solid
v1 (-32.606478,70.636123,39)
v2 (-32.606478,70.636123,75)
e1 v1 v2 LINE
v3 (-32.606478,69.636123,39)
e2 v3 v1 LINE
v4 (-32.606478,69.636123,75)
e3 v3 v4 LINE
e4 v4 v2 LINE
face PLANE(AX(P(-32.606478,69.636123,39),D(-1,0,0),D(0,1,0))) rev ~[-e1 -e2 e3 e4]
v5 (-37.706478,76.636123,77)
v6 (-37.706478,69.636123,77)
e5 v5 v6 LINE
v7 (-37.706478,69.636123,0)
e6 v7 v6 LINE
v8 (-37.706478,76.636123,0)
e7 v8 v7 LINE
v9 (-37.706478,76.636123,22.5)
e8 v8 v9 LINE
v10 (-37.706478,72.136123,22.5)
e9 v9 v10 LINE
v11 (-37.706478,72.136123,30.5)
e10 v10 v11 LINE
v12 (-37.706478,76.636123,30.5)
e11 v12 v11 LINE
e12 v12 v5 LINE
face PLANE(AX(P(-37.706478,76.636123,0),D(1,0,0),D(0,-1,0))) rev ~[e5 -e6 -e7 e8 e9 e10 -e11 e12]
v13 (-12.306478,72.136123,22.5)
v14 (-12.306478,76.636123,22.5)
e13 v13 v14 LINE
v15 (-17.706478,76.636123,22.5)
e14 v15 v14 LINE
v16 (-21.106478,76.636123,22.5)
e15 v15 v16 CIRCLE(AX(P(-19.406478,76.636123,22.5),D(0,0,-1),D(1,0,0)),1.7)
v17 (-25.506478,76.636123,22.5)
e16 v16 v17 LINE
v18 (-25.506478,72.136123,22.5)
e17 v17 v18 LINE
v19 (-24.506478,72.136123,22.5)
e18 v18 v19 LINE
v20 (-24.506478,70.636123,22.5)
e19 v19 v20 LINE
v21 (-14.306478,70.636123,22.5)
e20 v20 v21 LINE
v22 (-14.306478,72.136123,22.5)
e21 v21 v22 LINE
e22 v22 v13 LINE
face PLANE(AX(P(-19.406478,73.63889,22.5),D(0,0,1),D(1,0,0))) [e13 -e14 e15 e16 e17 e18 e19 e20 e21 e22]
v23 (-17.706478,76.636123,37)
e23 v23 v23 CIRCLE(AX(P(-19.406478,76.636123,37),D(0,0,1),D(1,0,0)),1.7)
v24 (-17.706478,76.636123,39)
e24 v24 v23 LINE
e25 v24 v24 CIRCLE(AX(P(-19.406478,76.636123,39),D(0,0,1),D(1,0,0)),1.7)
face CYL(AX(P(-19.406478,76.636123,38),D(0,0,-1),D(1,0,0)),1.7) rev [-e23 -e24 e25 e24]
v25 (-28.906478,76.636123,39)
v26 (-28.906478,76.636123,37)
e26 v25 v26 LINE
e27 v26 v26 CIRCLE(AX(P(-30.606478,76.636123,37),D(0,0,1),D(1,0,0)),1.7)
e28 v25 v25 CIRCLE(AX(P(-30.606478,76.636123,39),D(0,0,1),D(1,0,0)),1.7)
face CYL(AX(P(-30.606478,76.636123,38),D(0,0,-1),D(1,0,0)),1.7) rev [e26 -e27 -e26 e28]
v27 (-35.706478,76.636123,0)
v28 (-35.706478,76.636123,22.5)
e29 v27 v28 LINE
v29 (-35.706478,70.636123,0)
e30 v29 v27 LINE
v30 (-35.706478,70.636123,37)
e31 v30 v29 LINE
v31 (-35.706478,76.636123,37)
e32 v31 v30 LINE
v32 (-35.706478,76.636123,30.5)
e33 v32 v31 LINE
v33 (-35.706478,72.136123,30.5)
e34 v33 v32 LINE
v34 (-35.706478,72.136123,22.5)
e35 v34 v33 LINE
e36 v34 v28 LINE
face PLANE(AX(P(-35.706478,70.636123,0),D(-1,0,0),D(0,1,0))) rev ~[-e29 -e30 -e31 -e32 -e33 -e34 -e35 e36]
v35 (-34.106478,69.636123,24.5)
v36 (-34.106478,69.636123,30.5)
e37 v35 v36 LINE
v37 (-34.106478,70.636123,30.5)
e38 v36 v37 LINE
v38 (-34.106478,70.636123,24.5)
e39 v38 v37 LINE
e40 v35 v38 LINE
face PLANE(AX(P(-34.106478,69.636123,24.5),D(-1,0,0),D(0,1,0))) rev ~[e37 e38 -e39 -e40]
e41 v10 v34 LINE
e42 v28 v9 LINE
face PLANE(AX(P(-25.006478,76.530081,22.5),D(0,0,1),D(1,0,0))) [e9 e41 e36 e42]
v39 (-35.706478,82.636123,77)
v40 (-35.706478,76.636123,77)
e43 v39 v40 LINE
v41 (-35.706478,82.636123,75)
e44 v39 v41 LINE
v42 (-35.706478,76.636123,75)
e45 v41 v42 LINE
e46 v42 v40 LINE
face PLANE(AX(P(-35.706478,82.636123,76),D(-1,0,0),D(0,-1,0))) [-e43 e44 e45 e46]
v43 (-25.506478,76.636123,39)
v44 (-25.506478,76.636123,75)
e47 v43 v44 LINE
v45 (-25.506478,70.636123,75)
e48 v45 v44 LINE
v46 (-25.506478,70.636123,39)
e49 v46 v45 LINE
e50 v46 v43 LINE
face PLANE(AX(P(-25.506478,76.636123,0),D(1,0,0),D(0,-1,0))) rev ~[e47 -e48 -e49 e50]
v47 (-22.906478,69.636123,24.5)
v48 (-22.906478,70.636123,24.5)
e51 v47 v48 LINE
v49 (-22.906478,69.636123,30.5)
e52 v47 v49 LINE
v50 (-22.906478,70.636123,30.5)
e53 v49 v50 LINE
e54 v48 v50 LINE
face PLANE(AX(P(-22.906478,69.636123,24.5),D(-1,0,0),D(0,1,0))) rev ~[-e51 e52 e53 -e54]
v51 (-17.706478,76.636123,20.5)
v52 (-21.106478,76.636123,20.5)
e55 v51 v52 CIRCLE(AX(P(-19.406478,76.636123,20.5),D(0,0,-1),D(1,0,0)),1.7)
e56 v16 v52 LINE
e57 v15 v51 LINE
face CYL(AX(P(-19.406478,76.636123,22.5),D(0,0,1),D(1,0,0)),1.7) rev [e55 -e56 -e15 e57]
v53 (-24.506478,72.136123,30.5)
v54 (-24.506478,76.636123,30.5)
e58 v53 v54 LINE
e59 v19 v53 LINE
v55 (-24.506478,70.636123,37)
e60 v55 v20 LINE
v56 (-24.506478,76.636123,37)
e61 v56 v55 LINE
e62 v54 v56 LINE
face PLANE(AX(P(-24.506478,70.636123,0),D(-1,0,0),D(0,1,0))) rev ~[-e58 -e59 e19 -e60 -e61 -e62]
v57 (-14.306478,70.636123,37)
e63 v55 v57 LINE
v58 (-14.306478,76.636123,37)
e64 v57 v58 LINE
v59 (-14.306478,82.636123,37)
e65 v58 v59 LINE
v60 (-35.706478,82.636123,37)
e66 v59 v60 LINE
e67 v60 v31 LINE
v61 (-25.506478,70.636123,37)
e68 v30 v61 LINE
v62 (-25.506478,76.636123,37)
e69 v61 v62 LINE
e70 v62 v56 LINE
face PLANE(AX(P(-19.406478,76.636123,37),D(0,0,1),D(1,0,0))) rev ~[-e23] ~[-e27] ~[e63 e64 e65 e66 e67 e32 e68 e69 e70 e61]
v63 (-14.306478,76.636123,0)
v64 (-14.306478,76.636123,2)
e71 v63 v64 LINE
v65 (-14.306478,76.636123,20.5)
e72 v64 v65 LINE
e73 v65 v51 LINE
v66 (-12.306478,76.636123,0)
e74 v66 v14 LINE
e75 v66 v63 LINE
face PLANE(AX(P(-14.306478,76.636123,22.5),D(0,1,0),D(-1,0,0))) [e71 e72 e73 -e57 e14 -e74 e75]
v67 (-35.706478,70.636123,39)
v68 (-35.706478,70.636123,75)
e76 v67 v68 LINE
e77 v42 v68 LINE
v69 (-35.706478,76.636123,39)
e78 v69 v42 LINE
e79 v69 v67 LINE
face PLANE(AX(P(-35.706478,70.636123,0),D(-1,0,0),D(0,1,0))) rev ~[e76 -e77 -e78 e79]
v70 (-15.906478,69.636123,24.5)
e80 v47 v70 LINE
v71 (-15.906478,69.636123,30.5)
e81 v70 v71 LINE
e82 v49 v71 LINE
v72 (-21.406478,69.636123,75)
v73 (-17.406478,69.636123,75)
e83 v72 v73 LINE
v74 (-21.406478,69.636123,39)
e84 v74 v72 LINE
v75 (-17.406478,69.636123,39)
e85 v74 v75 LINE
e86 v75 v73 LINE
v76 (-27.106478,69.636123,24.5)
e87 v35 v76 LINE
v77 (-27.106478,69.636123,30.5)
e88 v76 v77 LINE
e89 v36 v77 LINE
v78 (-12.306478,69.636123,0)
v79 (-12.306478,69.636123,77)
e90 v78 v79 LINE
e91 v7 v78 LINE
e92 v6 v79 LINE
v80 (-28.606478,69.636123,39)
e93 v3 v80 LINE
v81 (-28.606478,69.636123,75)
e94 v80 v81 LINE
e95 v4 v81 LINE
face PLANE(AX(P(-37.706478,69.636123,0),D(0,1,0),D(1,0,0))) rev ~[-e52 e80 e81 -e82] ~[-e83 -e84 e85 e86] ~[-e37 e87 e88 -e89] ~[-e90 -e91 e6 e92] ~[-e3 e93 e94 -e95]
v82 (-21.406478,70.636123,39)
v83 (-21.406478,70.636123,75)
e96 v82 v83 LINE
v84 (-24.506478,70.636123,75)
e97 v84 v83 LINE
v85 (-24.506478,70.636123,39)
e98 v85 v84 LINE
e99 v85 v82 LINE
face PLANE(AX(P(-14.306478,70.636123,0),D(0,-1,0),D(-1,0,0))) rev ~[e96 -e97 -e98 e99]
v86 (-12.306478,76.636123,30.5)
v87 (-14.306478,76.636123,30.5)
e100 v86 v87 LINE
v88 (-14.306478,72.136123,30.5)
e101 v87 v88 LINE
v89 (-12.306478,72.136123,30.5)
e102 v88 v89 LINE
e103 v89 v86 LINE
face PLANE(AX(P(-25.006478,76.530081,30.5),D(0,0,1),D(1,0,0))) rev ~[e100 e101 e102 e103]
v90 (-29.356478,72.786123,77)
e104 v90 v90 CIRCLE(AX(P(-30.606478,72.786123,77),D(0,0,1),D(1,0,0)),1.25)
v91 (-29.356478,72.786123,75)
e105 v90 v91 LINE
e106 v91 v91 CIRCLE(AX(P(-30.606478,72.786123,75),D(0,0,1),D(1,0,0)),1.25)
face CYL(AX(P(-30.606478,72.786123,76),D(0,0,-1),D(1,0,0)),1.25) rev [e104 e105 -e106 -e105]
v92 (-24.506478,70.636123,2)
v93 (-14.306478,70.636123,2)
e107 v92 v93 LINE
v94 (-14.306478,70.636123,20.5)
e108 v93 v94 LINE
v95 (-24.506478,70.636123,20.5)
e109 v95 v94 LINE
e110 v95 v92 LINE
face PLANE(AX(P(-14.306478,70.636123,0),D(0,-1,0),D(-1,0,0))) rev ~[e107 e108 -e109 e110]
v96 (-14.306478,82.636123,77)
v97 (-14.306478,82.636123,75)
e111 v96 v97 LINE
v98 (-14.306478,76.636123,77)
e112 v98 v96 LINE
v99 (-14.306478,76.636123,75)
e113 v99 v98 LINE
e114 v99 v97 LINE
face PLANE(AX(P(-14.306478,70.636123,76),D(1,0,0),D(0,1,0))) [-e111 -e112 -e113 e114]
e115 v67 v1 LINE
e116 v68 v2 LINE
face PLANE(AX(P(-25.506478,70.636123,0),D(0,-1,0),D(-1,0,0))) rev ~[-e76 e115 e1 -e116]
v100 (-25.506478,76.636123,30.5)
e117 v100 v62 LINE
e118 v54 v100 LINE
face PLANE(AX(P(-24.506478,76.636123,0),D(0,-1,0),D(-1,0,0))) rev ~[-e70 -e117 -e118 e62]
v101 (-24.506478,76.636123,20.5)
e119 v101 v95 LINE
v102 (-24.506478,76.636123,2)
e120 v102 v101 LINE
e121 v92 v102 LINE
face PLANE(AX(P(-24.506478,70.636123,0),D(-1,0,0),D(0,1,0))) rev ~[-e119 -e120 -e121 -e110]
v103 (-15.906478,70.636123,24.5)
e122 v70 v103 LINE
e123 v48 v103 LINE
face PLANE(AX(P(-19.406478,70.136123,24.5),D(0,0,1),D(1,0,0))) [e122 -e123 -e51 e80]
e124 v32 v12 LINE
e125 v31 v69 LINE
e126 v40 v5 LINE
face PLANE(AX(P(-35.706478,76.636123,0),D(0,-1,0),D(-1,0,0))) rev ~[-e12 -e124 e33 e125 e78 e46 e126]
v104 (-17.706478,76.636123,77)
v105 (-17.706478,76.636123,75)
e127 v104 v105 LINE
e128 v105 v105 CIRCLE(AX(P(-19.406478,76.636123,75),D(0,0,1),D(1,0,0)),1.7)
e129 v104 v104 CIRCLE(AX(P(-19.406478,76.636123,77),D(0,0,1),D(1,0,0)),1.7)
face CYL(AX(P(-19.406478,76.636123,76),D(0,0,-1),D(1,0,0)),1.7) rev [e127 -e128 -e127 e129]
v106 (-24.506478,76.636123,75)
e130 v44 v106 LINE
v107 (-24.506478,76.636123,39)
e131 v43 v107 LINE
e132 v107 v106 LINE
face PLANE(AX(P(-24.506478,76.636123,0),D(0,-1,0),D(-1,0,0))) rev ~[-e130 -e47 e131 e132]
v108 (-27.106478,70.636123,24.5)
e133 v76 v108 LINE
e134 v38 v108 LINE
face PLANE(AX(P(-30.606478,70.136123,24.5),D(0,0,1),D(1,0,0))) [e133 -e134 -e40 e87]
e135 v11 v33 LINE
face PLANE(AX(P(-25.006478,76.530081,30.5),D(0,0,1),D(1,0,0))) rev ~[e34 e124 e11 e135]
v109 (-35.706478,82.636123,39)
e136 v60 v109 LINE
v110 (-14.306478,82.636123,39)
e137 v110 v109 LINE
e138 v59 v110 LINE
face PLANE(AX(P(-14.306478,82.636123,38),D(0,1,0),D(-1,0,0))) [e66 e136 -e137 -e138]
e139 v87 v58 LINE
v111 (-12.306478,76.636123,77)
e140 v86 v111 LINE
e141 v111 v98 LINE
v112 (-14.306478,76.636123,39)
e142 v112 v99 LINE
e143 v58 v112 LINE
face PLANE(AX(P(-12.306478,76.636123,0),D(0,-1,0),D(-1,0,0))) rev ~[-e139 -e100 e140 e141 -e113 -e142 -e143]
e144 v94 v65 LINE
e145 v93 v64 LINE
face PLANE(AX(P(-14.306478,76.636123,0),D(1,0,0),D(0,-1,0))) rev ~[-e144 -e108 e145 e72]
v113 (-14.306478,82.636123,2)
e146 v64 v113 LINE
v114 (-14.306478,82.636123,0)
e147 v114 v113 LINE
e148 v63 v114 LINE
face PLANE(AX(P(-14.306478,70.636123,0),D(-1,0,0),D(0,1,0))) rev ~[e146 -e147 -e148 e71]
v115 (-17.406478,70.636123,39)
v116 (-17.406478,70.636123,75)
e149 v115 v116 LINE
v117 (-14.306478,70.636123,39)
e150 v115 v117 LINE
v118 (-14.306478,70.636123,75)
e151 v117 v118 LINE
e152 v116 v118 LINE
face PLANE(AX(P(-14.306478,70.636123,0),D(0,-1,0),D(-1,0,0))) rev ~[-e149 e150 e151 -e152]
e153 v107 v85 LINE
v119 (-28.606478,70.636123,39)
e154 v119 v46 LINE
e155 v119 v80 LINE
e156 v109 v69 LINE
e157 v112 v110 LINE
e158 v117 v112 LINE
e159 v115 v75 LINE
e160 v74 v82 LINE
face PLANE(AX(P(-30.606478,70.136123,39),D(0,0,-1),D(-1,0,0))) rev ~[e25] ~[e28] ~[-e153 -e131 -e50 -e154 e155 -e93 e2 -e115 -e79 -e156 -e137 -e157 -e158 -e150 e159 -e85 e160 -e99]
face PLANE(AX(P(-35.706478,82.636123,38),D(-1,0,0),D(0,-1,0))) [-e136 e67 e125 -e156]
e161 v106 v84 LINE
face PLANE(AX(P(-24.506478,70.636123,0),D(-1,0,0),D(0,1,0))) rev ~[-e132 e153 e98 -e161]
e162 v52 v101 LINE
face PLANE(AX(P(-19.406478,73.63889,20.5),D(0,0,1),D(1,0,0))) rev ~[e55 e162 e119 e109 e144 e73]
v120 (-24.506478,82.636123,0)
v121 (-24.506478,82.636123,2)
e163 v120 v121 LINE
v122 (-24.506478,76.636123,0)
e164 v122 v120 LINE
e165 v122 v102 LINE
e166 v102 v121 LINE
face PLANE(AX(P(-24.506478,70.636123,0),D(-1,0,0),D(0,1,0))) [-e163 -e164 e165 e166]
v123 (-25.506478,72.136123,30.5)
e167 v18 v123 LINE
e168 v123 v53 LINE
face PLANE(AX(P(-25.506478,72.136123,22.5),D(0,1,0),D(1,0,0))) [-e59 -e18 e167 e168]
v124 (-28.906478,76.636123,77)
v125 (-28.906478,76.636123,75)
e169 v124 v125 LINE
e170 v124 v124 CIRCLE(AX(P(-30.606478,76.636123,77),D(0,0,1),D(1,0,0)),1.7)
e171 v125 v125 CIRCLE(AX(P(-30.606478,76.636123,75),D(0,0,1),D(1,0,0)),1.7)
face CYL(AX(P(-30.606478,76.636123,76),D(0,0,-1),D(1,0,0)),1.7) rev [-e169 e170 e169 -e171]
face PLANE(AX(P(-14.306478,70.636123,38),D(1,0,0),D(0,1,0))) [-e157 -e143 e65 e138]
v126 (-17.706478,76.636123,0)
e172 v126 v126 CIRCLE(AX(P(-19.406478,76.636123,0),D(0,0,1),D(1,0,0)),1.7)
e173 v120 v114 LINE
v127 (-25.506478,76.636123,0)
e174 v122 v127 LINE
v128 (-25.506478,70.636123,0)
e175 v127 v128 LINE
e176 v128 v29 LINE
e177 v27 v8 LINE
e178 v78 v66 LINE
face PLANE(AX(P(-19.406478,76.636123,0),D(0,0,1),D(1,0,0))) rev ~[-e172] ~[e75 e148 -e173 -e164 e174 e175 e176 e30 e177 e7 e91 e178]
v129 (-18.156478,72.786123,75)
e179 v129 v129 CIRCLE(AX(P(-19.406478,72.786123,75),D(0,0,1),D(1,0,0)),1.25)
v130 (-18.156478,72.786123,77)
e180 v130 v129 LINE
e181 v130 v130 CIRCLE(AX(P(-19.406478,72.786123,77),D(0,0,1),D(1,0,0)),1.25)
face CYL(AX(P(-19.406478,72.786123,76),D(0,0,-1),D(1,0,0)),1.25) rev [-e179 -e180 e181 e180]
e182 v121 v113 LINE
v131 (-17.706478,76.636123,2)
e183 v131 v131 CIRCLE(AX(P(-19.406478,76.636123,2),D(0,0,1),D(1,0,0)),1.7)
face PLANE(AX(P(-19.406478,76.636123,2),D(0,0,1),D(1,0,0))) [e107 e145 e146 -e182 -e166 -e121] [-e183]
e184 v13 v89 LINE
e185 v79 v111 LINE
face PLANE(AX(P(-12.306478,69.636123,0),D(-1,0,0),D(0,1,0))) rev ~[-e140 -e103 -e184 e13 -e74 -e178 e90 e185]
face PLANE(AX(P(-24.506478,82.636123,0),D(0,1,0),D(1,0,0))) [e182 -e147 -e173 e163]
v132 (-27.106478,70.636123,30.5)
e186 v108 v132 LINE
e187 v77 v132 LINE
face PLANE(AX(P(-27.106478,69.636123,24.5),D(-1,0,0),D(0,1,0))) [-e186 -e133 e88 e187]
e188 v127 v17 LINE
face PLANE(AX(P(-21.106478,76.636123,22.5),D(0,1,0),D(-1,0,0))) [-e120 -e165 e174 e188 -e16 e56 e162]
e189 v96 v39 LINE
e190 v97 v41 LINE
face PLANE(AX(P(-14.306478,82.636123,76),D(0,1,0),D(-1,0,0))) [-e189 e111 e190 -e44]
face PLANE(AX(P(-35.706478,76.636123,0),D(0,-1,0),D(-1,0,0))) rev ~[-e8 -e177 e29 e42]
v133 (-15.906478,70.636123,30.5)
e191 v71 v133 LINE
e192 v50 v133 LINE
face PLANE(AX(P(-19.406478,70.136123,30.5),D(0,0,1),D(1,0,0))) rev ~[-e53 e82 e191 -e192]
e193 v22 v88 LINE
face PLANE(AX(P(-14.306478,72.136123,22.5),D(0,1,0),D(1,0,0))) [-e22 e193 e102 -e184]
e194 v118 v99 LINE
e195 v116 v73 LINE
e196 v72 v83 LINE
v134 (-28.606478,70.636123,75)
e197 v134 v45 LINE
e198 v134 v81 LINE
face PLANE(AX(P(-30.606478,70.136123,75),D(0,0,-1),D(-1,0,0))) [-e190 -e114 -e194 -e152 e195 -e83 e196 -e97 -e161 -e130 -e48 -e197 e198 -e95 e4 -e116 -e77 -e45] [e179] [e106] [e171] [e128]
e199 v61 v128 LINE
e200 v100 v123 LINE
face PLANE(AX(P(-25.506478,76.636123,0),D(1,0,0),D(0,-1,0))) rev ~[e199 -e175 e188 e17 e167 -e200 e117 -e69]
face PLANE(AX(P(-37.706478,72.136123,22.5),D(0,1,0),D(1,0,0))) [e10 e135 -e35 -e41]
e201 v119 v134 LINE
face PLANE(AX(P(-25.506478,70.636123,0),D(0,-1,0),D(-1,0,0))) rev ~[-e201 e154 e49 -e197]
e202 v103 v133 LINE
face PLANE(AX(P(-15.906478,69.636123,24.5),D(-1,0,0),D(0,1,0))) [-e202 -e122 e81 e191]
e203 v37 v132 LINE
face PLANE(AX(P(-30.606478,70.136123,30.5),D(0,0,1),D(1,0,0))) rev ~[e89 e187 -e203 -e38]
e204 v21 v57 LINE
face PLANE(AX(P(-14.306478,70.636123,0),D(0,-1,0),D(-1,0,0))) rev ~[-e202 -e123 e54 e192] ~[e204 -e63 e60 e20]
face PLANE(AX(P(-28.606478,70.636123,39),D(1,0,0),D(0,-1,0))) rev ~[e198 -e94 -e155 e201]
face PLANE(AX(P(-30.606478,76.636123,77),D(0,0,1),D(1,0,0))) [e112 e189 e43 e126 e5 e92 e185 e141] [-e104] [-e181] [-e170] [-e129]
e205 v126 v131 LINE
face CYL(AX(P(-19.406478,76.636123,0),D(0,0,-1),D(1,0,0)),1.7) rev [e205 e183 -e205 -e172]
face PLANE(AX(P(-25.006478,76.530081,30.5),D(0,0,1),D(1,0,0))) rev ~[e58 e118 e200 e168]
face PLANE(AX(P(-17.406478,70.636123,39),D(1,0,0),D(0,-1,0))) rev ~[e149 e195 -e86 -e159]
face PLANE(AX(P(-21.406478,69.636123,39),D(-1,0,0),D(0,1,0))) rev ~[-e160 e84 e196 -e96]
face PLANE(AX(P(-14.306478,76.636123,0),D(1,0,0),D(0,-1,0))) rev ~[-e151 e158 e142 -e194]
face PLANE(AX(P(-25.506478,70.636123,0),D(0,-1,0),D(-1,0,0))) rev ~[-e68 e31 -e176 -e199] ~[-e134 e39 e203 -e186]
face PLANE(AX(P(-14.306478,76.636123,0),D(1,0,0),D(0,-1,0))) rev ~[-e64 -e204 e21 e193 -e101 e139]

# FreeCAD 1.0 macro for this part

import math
import FreeCAD as App
import Part
import Sketcher
Q = App.Units.Quantity

doc = App.newDocument("Part")
params = doc.addObject("Spreadsheet::Sheet", "Params")
for row, (alias, value) in enumerate([
    ("sketch1_width", "1 mm"),
    ("sketch1_width2", "2 mm"),
    ("sketch1_height", "6 mm"),
    ("sketch1_height2", "7 mm"),
    ("sketch1_width3", "10.2 mm"),
    ("pad1_length", "77 mm"),
    ("sketch2_diameter", "3.4 mm"),
    ("sketch2_width", "1 mm"),
    ("sketch2_height", "12 mm"),
    ("sketch2_height2", "6 mm"),
    ("sketch2_width2", "10.2 mm"),
    ("pad2_length", "2 mm"),
    ("sketch3_diameter", "2.5 mm"),
    ("sketch3_diameter2", "3.4 mm"),
    ("sketch3_width", "1 mm"),
    ("sketch3_height", "12 mm"),
    ("sketch3_height2", "6 mm"),
    ("pad3_length", "2 mm"),
    ("sketch4_width", "2 mm"),
    ("sketch4_width2", "1 mm"),
    ("sketch4_width3", "25.4 mm"),
    ("sketch4_height", "1.5 mm"),
    ("sketch4_height2", "10.5 mm"),
    ("pocket1_length", "8 mm"),
    ("sketch5_radius", "1.7 mm"),
    ("sketch5_height", "6 mm"),
    ("sketch5_width", "10.2 mm"),
    ("pad4_length", "2 mm"),
    ("sketch6_diameter", "3.4 mm"),
    ("sketch6_height", "12 mm"),
    ("sketch6_width", "10.2 mm"),
    ("pad5_length", "2 mm"),
    ("sketch7_width", "7 mm"),
    ("sketch7_height", "1 mm"),
    ("pocket2_length", "6 mm"),
    ("sketch8_width", "4 mm"),
    ("sketch8_height", "1 mm"),
    ("pocket3_length", "36 mm"),
], start=1):
    params.set(f"A{row}", alias)
    params.set(f"B{row}", "=" + value)
    params.setAlias(f"B{row}", alias)

body = doc.addObject("PartDesign::Body", "Body")

sketch1 = body.newObject("Sketcher::SketchObject", "Sketch")
sketch1.AttachmentSupport = (doc.getObject("XY_Plane"), [""])
sketch1.MapMode = "FlatFace"
sketch1.addGeometry([
    Part.LineSegment(App.Vector(-24.506478, 70.636123, 0), App.Vector(-24.506478, 76.636123, 0)),
    Part.LineSegment(App.Vector(-24.506478, 76.636123, 0), App.Vector(-25.506478, 76.636123, 0)),
    Part.LineSegment(App.Vector(-25.506478, 76.636123, 0), App.Vector(-25.506478, 70.636123, 0)),
    Part.LineSegment(App.Vector(-25.506478, 70.636123, 0), App.Vector(-35.706478, 70.636123, 0)),
    Part.LineSegment(App.Vector(-35.706478, 70.636123, 0), App.Vector(-35.706478, 76.636123, 0)),
    Part.LineSegment(App.Vector(-35.706478, 76.636123, 0), App.Vector(-37.706478, 76.636123, 0)),
    Part.LineSegment(App.Vector(-37.706478, 76.636123, 0), App.Vector(-37.706478, 69.636123, 0)),
    Part.LineSegment(App.Vector(-37.706478, 69.636123, 0), App.Vector(-12.306478, 69.636123, 0)),
    Part.LineSegment(App.Vector(-12.306478, 69.636123, 0), App.Vector(-12.306478, 76.636123, 0)),
    Part.LineSegment(App.Vector(-12.306478, 76.636123, 0), App.Vector(-14.306478, 76.636123, 0)),
    Part.LineSegment(App.Vector(-14.306478, 76.636123, 0), App.Vector(-14.306478, 70.636123, 0)),
    Part.LineSegment(App.Vector(-14.306478, 70.636123, 0), App.Vector(-24.506478, 70.636123, 0)),
], False)
sketch1.addConstraint([
    Sketcher.Constraint("Coincident", 0, 2, 1, 1),
    Sketcher.Constraint("Coincident", 1, 2, 2, 1),
    Sketcher.Constraint("Coincident", 2, 2, 3, 1),
    Sketcher.Constraint("Coincident", 3, 2, 4, 1),
    Sketcher.Constraint("Coincident", 4, 2, 5, 1),
    Sketcher.Constraint("Coincident", 5, 2, 6, 1),
    Sketcher.Constraint("Coincident", 6, 2, 7, 1),
    Sketcher.Constraint("Coincident", 7, 2, 8, 1),
    Sketcher.Constraint("Coincident", 8, 2, 9, 1),
    Sketcher.Constraint("Coincident", 9, 2, 10, 1),
    Sketcher.Constraint("Coincident", 10, 2, 11, 1),
    Sketcher.Constraint("Coincident", 11, 2, 0, 1),
    Sketcher.Constraint("Vertical", 0),
    Sketcher.Constraint("Horizontal", 1),
    Sketcher.Constraint("Vertical", 2),
    Sketcher.Constraint("Horizontal", 3),
    Sketcher.Constraint("Vertical", 4),
    Sketcher.Constraint("Horizontal", 5),
    Sketcher.Constraint("Vertical", 6),
    Sketcher.Constraint("Horizontal", 7),
    Sketcher.Constraint("Vertical", 8),
    Sketcher.Constraint("Horizontal", 9),
    Sketcher.Constraint("Vertical", 10),
    Sketcher.Constraint("Horizontal", 11),
    Sketcher.Constraint("Horizontal", 1, 2, 4, 2),
    Sketcher.Constraint("Horizontal", 5, 2, 8, 2),
    Sketcher.Constraint("Horizontal", 3, 2, 10, 2),
    Sketcher.Constraint("Equal", 5, 9),
    Sketcher.Constraint("Equal", 3, 11),
    Sketcher.Constraint("DistanceX", 1, 2, 1, 1, Q("1 mm")),
    Sketcher.Constraint("DistanceX", 5, 2, 5, 1, Q("2 mm")),
    Sketcher.Constraint("DistanceY", 0, 1, 0, 2, Q("6 mm")),
    Sketcher.Constraint("DistanceY", 6, 2, 6, 1, Q("7 mm")),
    Sketcher.Constraint("DistanceX", 3, 2, 3, 1, Q("10.2 mm")),
    Sketcher.Constraint("DistanceX", 0, 2, -1, 1, Q("24.506478 mm")),
    Sketcher.Constraint("DistanceY", -1, 1, 0, 2, Q("76.636123 mm")),
])
sketch1.setExpression("Constraints[29]", "Params.sketch1_width")
sketch1.setExpression("Constraints[30]", "Params.sketch1_width2")
sketch1.setExpression("Constraints[31]", "Params.sketch1_height")
sketch1.setExpression("Constraints[32]", "Params.sketch1_height2")
sketch1.setExpression("Constraints[33]", "Params.sketch1_width3")
pad1 = body.newObject("PartDesign::Pad", "Pad")
pad1.Profile = sketch1
pad1.setExpression("Length", "Params.pad1_length")

sketch2 = body.newObject("Sketcher::SketchObject", "Sketch001")
sketch2.AttachmentSupport = (doc.getObject("XY_Plane"), [""])
sketch2.MapMode = "FlatFace"
sketch2.AttachmentOffset = App.Placement(App.Vector(0, 0, 38), App.Rotation())
sketch2.addGeometry([
    Part.LineSegment(App.Vector(-24.506478, 70.636123, 0), App.Vector(-14.306478, 70.636123, 0)),
    Part.LineSegment(App.Vector(-14.306478, 70.636123, 0), App.Vector(-14.306478, 82.636123, 0)),
    Part.LineSegment(App.Vector(-14.306478, 82.636123, 0), App.Vector(-35.706478, 82.636123, 0)),
    Part.LineSegment(App.Vector(-35.706478, 82.636123, 0), App.Vector(-35.706478, 70.636123, 0)),
    Part.LineSegment(App.Vector(-35.706478, 70.636123, 0), App.Vector(-25.506478, 70.636123, 0)),
    Part.LineSegment(App.Vector(-25.506478, 70.636123, 0), App.Vector(-25.506478, 76.636123, 0)),
    Part.LineSegment(App.Vector(-25.506478, 76.636123, 0), App.Vector(-24.506478, 76.636123, 0)),
    Part.LineSegment(App.Vector(-24.506478, 76.636123, 0), App.Vector(-24.506478, 70.636123, 0)),
    Part.Circle(App.Vector(-30.606478, 76.636123, 0), App.Vector(0, 0, 1), 1.7),
    Part.Circle(App.Vector(-19.406478, 76.636123, 0), App.Vector(0, 0, 1), 1.7),
], False)
sketch2.addConstraint([
    Sketcher.Constraint("Coincident", 0, 2, 1, 1),
    Sketcher.Constraint("Coincident", 1, 2, 2, 1),
    Sketcher.Constraint("Coincident", 2, 2, 3, 1),
    Sketcher.Constraint("Coincident", 3, 2, 4, 1),
    Sketcher.Constraint("Coincident", 4, 2, 5, 1),
    Sketcher.Constraint("Coincident", 5, 2, 6, 1),
    Sketcher.Constraint("Coincident", 6, 2, 7, 1),
    Sketcher.Constraint("Coincident", 7, 2, 0, 1),
    Sketcher.Constraint("Horizontal", 0),
    Sketcher.Constraint("Vertical", 1),
    Sketcher.Constraint("Horizontal", 2),
    Sketcher.Constraint("Vertical", 3),
    Sketcher.Constraint("Horizontal", 4),
    Sketcher.Constraint("Vertical", 5),
    Sketcher.Constraint("Horizontal", 6),
    Sketcher.Constraint("Vertical", 7),
    Sketcher.Constraint("Equal", 8, 9),
    Sketcher.Constraint("Horizontal", 8, 3, 9, 3),
    Sketcher.Constraint("Horizontal", 0, 2, 3, 2),
    Sketcher.Constraint("Horizontal", 9, 3, 5, 2),
    Sketcher.Constraint("Equal", 0, 4),
    Sketcher.Constraint("Diameter", 8, Q("3.4 mm")),
    Sketcher.Constraint("DistanceX", 6, 1, 6, 2, Q("1 mm")),
    Sketcher.Constraint("DistanceY", 1, 1, 1, 2, Q("12 mm")),
    Sketcher.Constraint("DistanceY", 5, 1, 5, 2, Q("6 mm")),
    Sketcher.Constraint("DistanceX", 0, 1, 0, 2, Q("10.2 mm")),
    Sketcher.Constraint("DistanceX", 8, 3, 9, 3, Q("11.2 mm")),
    Sketcher.Constraint("DistanceX", 9, 3, 0, 2, Q("5.1 mm")),
    Sketcher.Constraint("DistanceX", 8, 3, -1, 1, Q("30.606478 mm")),
    Sketcher.Constraint("DistanceY", -1, 1, 8, 3, Q("76.636123 mm")),
])
sketch2.setExpression("Constraints[21]", "Params.sketch2_diameter")
sketch2.setExpression("Constraints[22]", "Params.sketch2_width")
sketch2.setExpression("Constraints[23]", "Params.sketch2_height")
sketch2.setExpression("Constraints[24]", "Params.sketch2_height2")
sketch2.setExpression("Constraints[25]", "Params.sketch2_width2")
pad2 = body.newObject("PartDesign::Pad", "Pad001")
pad2.Profile = sketch2
pad2.setExpression("Length", "Params.pad2_length")
pad2.Midplane = True

sketch3 = body.newObject("Sketcher::SketchObject", "Sketch002")
sketch3.AttachmentSupport = (doc.getObject("XY_Plane"), [""])
sketch3.MapMode = "FlatFace"
sketch3.AttachmentOffset = App.Placement(App.Vector(0, 0, 76), App.Rotation())
sketch3.addGeometry([
    Part.LineSegment(App.Vector(-35.706478, 82.636123, 0), App.Vector(-35.706478, 70.636123, 0)),
    Part.LineSegment(App.Vector(-35.706478, 70.636123, 0), App.Vector(-25.506478, 70.636123, 0)),
    Part.LineSegment(App.Vector(-25.506478, 70.636123, 0), App.Vector(-25.506478, 76.636123, 0)),
    Part.LineSegment(App.Vector(-25.506478, 76.636123, 0), App.Vector(-24.506478, 76.636123, 0)),
    Part.LineSegment(App.Vector(-24.506478, 76.636123, 0), App.Vector(-24.506478, 70.636123, 0)),
    Part.LineSegment(App.Vector(-24.506478, 70.636123, 0), App.Vector(-14.306478, 70.636123, 0)),
    Part.LineSegment(App.Vector(-14.306478, 70.636123, 0), App.Vector(-14.306478, 82.636123, 0)),
    Part.LineSegment(App.Vector(-14.306478, 82.636123, 0), App.Vector(-35.706478, 82.636123, 0)),
    Part.Circle(App.Vector(-30.606478, 72.786123, 0), App.Vector(0, 0, 1), 1.25),
    Part.Circle(App.Vector(-19.406478, 72.786123, 0), App.Vector(0, 0, 1), 1.25),
    Part.Circle(App.Vector(-30.606478, 76.636123, 0), App.Vector(0, 0, 1), 1.7),
    Part.Circle(App.Vector(-19.406478, 76.636123, 0), App.Vector(0, 0, 1), 1.7),
], False)
sketch3.addConstraint([
    Sketcher.Constraint("Coincident", 0, 2, 1, 1),
    Sketcher.Constraint("Coincident", 1, 2, 2, 1),
    Sketcher.Constraint("Coincident", 2, 2, 3, 1),
    Sketcher.Constraint("Coincident", 3, 2, 4, 1),
    Sketcher.Constraint("Coincident", 4, 2, 5, 1),
    Sketcher.Constraint("Coincident", 5, 2, 6, 1),
    Sketcher.Constraint("Coincident", 6, 2, 7, 1),
    Sketcher.Constraint("Coincident", 7, 2, 0, 1),
    Sketcher.Constraint("Vertical", 0),
    Sketcher.Constraint("Horizontal", 1),
    Sketcher.Constraint("Vertical", 2),
    Sketcher.Constraint("Horizontal", 3),
    Sketcher.Constraint("Vertical", 4),
    Sketcher.Constraint("Horizontal", 5),
    Sketcher.Constraint("Vertical", 6),
    Sketcher.Constraint("Horizontal", 7),
    Sketcher.Constraint("Equal", 8, 9),
    Sketcher.Constraint("Equal", 10, 11),
    Sketcher.Constraint("Horizontal", 8, 3, 9, 3),
    Sketcher.Constraint("Horizontal", 10, 3, 11, 3),
    Sketcher.Constraint("Horizontal", 11, 3, 2, 2),
    Sketcher.Constraint("Horizontal", 1, 2, 4, 2),
    Sketcher.Constraint("Vertical", 8, 3, 10, 3),
    Sketcher.Constraint("Vertical", 9, 3, 11, 3),
    Sketcher.Constraint("Equal", 1, 5),
    Sketcher.Constraint("Diameter", 8, Q("2.5 mm")),
    Sketcher.Constraint("Diameter", 10, Q("3.4 mm")),
    Sketcher.Constraint("DistanceX", 3, 1, 3, 2, Q("1 mm")),
    Sketcher.Constraint("DistanceY", 0, 2, 0, 1, Q("12 mm")),
    Sketcher.Constraint("DistanceY", 2, 1, 2, 2, Q("6 mm")),
    Sketcher.Constraint("DistanceX", 1, 1, 1, 2, Q("10.2 mm")),
    Sketcher.Constraint("DistanceX", 8, 3, 9, 3, Q("11.2 mm")),
    Sketcher.Constraint("DistanceX", 0, 2, 8, 3, Q("5.1 mm")),
    Sketcher.Constraint("DistanceY", 8, 3, 10, 3, Q("3.85 mm")),
    Sketcher.Constraint("DistanceX", 8, 3, -1, 1, Q("30.606478 mm")),
    Sketcher.Constraint("DistanceY", -1, 1, 8, 3, Q("72.786123 mm")),
])
sketch3.setExpression("Constraints[25]", "Params.sketch3_diameter")
sketch3.setExpression("Constraints[26]", "Params.sketch3_diameter2")
sketch3.setExpression("Constraints[27]", "Params.sketch3_width")
sketch3.setExpression("Constraints[28]", "Params.sketch3_height")
sketch3.setExpression("Constraints[29]", "Params.sketch3_height2")
pad3 = body.newObject("PartDesign::Pad", "Pad002")
pad3.Profile = sketch3
pad3.setExpression("Length", "Params.pad3_length")
pad3.Midplane = True

sketch4 = body.newObject("Sketcher::SketchObject", "Sketch003")
sketch4.AttachmentSupport = (doc.getObject("XY_Plane"), [""])
sketch4.MapMode = "FlatFace"
sketch4.AttachmentOffset = App.Placement(App.Vector(0, 0, 22.5), App.Rotation())
sketch4.addGeometry([
    Part.LineSegment(App.Vector(-14.306478, 70.636123, 0), App.Vector(-14.306478, 72.136123, 0)),
    Part.LineSegment(App.Vector(-14.306478, 72.136123, 0), App.Vector(-12.306478, 72.136123, 0)),
    Part.LineSegment(App.Vector(-12.306478, 72.136123, 0), App.Vector(-12.306478, 82.636123, 0)),
    Part.LineSegment(App.Vector(-12.306478, 82.636123, 0), App.Vector(-37.706478, 82.636123, 0)),
    Part.LineSegment(App.Vector(-37.706478, 82.636123, 0), App.Vector(-37.706478, 72.136123, 0)),
    Part.LineSegment(App.Vector(-37.706478, 72.136123, 0), App.Vector(-35.706478, 72.136123, 0)),
    Part.LineSegment(App.Vector(-35.706478, 72.136123, 0), App.Vector(-35.706478, 70.636123, 0)),
    Part.LineSegment(App.Vector(-35.706478, 70.636123, 0), App.Vector(-25.506478, 70.636123, 0)),
    Part.LineSegment(App.Vector(-25.506478, 70.636123, 0), App.Vector(-25.506478, 72.136123, 0)),
    Part.LineSegment(App.Vector(-25.506478, 72.136123, 0), App.Vector(-24.506478, 72.136123, 0)),
    Part.LineSegment(App.Vector(-24.506478, 72.136123, 0), App.Vector(-24.506478, 70.636123, 0)),
    Part.LineSegment(App.Vector(-24.506478, 70.636123, 0), App.Vector(-14.306478, 70.636123, 0)),
], False)
sketch4.addConstraint([
    Sketcher.Constraint("Coincident", 0, 2, 1, 1),
    Sketcher.Constraint("Coincident", 1, 2, 2, 1),
    Sketcher.Constraint("Coincident", 2, 2, 3, 1),
    Sketcher.Constraint("Coincident", 3, 2, 4, 1),
    Sketcher.Constraint("Coincident", 4, 2, 5, 1),
    Sketcher.Constraint("Coincident", 5, 2, 6, 1),
    Sketcher.Constraint("Coincident", 6, 2, 7, 1),
    Sketcher.Constraint("Coincident", 7, 2, 8, 1),
    Sketcher.Constraint("Coincident", 8, 2, 9, 1),
    Sketcher.Constraint("Coincident", 9, 2, 10, 1),
    Sketcher.Constraint("Coincident", 10, 2, 11, 1),
    Sketcher.Constraint("Coincident", 11, 2, 0, 1),
    Sketcher.Constraint("Vertical", 0),
    Sketcher.Constraint("Horizontal", 1),
    Sketcher.Constraint("Vertical", 2),
    Sketcher.Constraint("Horizontal", 3),
    Sketcher.Constraint("Vertical", 4),
    Sketcher.Constraint("Horizontal", 5),
    Sketcher.Constraint("Vertical", 6),
    Sketcher.Constraint("Horizontal", 7),
    Sketcher.Constraint("Vertical", 8),
    Sketcher.Constraint("Horizontal", 9),
    Sketcher.Constraint("Vertical", 10),
    Sketcher.Constraint("Horizontal", 11),
    Sketcher.Constraint("Horizontal", 1, 2, 4, 2),
    Sketcher.Constraint("Horizontal", 5, 2, 8, 2),
    Sketcher.Constraint("Horizontal", 7, 2, 10, 2),
    Sketcher.Constraint("Equal", 1, 5),
    Sketcher.Constraint("Equal", 7, 11),
    Sketcher.Constraint("DistanceX", 1, 1, 1, 2, Q("2 mm")),
    Sketcher.Constraint("DistanceX", 9, 1, 9, 2, Q("1 mm")),
    Sketcher.Constraint("DistanceX", 3, 2, 3, 1, Q("25.4 mm")),
    Sketcher.Constraint("DistanceY", 0, 1, 0, 2, Q("1.5 mm")),
    Sketcher.Constraint("DistanceY", 2, 1, 2, 2, Q("10.5 mm")),
    Sketcher.Constraint("DistanceX", 0, 2, -1, 1, Q("14.306478 mm")),
    Sketcher.Constraint("DistanceY", -1, 1, 0, 2, Q("72.136123 mm")),
])
sketch4.setExpression("Constraints[29]", "Params.sketch4_width")
sketch4.setExpression("Constraints[30]", "Params.sketch4_width2")
sketch4.setExpression("Constraints[31]", "Params.sketch4_width3")
sketch4.setExpression("Constraints[32]", "Params.sketch4_height")
sketch4.setExpression("Constraints[33]", "Params.sketch4_height2")
pocket1 = body.newObject("PartDesign::Pocket", "Pocket")
pocket1.Profile = sketch4
pocket1.setExpression("Length", "Params.pocket1_length")
pocket1.Reversed = True

sketch5 = body.newObject("Sketcher::SketchObject", "Sketch004")
sketch5.AttachmentSupport = (doc.getObject("XY_Plane"), [""])
sketch5.MapMode = "FlatFace"
sketch5.AttachmentOffset = App.Placement(App.Vector(0, 0, 22.5), App.Rotation())
sketch5.addGeometry([
    Part.LineSegment(App.Vector(-24.506478, 76.636123, 0), App.Vector(-24.506478, 70.636123, 0)),
    Part.LineSegment(App.Vector(-24.506478, 70.636123, 0), App.Vector(-14.306478, 70.636123, 0)),
    Part.LineSegment(App.Vector(-14.306478, 70.636123, 0), App.Vector(-14.306478, 76.636123, 0)),
    Part.LineSegment(App.Vector(-14.306478, 76.636123, 0), App.Vector(-17.706478, 76.636123, 0)),
    Part.ArcOfCircle(Part.Circle(App.Vector(-19.406478, 76.636123, 0), App.Vector(0, 0, 1), 1.7), math.radians(180), math.radians(360)),
    Part.LineSegment(App.Vector(-21.106478, 76.636123, 0), App.Vector(-24.506478, 76.636123, 0)),
], False)
sketch5.addConstraint([
    Sketcher.Constraint("Coincident", 0, 2, 1, 1),
    Sketcher.Constraint("Coincident", 1, 2, 2, 1),
    Sketcher.Constraint("Coincident", 2, 2, 3, 1),
    Sketcher.Constraint("Coincident", 3, 2, 4, 2),
    Sketcher.Constraint("Coincident", 4, 1, 5, 1),
    Sketcher.Constraint("Coincident", 5, 2, 0, 1),
    Sketcher.Constraint("Vertical", 0),
    Sketcher.Constraint("Horizontal", 1),
    Sketcher.Constraint("Vertical", 2),
    Sketcher.Constraint("Horizontal", 3),
    Sketcher.Constraint("Horizontal", 5),
    Sketcher.Constraint("Horizontal", 4, 3, 2, 2),
    Sketcher.Constraint("Horizontal", 3, 2, 4, 1),
    Sketcher.Constraint("Equal", 3, 5),
    Sketcher.Constraint("Radius", 4, Q("1.7 mm")),
    Sketcher.Constraint("DistanceY", 0, 2, 0, 1, Q("6 mm")),
    Sketcher.Constraint("DistanceX", 1, 1, 1, 2, Q("10.2 mm")),
    Sketcher.Constraint("DistanceX", 4, 3, -1, 1, Q("19.406478 mm")),
    Sketcher.Constraint("DistanceY", -1, 1, 4, 3, Q("76.636123 mm")),
])
sketch5.setExpression("Constraints[14]", "Params.sketch5_radius")
sketch5.setExpression("Constraints[15]", "Params.sketch5_height")
sketch5.setExpression("Constraints[16]", "Params.sketch5_width")
pad4 = body.newObject("PartDesign::Pad", "Pad003")
pad4.Profile = sketch5
pad4.setExpression("Length", "Params.pad4_length")
pad4.Reversed = True

sketch6 = body.newObject("Sketcher::SketchObject", "Sketch005")
sketch6.AttachmentSupport = (doc.getObject("XY_Plane"), [""])
sketch6.MapMode = "FlatFace"
sketch6.addGeometry([
    Part.LineSegment(App.Vector(-24.506478, 82.636123, 0), App.Vector(-24.506478, 70.636123, 0)),
    Part.LineSegment(App.Vector(-24.506478, 70.636123, 0), App.Vector(-14.306478, 70.636123, 0)),
    Part.LineSegment(App.Vector(-14.306478, 70.636123, 0), App.Vector(-14.306478, 82.636123, 0)),
    Part.LineSegment(App.Vector(-14.306478, 82.636123, 0), App.Vector(-24.506478, 82.636123, 0)),
    Part.Circle(App.Vector(-19.406478, 76.636123, 0), App.Vector(0, 0, 1), 1.7),
], False)
sketch6.addConstraint([
    Sketcher.Constraint("Coincident", 0, 2, 1, 1),
    Sketcher.Constraint("Coincident", 1, 2, 2, 1),
    Sketcher.Constraint("Coincident", 2, 2, 3, 1),
    Sketcher.Constraint("Coincident", 3, 2, 0, 1),
    Sketcher.Constraint("Vertical", 0),
    Sketcher.Constraint("Horizontal", 1),
    Sketcher.Constraint("Vertical", 2),
    Sketcher.Constraint("Horizontal", 3),
    Sketcher.Constraint("Diameter", 4, Q("3.4 mm")),
    Sketcher.Constraint("DistanceY", 0, 2, 0, 1, Q("12 mm")),
    Sketcher.Constraint("DistanceX", 1, 1, 1, 2, Q("10.2 mm")),
    Sketcher.Constraint("DistanceY", 0, 2, 4, 3, Q("6 mm")),
    Sketcher.Constraint("DistanceX", 0, 2, 4, 3, Q("5.1 mm")),
    Sketcher.Constraint("DistanceX", 4, 3, -1, 1, Q("19.406478 mm")),
    Sketcher.Constraint("DistanceY", -1, 1, 4, 3, Q("76.636123 mm")),
])
sketch6.setExpression("Constraints[8]", "Params.sketch6_diameter")
sketch6.setExpression("Constraints[9]", "Params.sketch6_height")
sketch6.setExpression("Constraints[10]", "Params.sketch6_width")
pad5 = body.newObject("PartDesign::Pad", "Pad004")
pad5.Profile = sketch6
pad5.setExpression("Length", "Params.pad5_length")

sketch7 = body.newObject("Sketcher::SketchObject", "Sketch006")
sketch7.AttachmentSupport = (doc.getObject("XY_Plane"), [""])
sketch7.MapMode = "FlatFace"
sketch7.AttachmentOffset = App.Placement(App.Vector(0, 0, 24.5), App.Rotation())
sketch7.addGeometry([
    Part.LineSegment(App.Vector(-34.106478, 70.636123, 0), App.Vector(-34.106478, 69.636123, 0)),
    Part.LineSegment(App.Vector(-34.106478, 69.636123, 0), App.Vector(-27.106478, 69.636123, 0)),
    Part.LineSegment(App.Vector(-27.106478, 69.636123, 0), App.Vector(-27.106478, 70.636123, 0)),
    Part.LineSegment(App.Vector(-27.106478, 70.636123, 0), App.Vector(-34.106478, 70.636123, 0)),
    Part.LineSegment(App.Vector(-22.906478, 70.636123, 0), App.Vector(-22.906478, 69.636123, 0)),
    Part.LineSegment(App.Vector(-22.906478, 69.636123, 0), App.Vector(-15.906478, 69.636123, 0)),
    Part.LineSegment(App.Vector(-15.906478, 69.636123, 0), App.Vector(-15.906478, 70.636123, 0)),
    Part.LineSegment(App.Vector(-15.906478, 70.636123, 0), App.Vector(-22.906478, 70.636123, 0)),
], False)
sketch7.addConstraint([
    Sketcher.Constraint("Coincident", 0, 2, 1, 1),
    Sketcher.Constraint("Coincident", 1, 2, 2, 1),
    Sketcher.Constraint("Coincident", 2, 2, 3, 1),
    Sketcher.Constraint("Coincident", 3, 2, 0, 1),
    Sketcher.Constraint("Coincident", 4, 2, 5, 1),
    Sketcher.Constraint("Coincident", 5, 2, 6, 1),
    Sketcher.Constraint("Coincident", 6, 2, 7, 1),
    Sketcher.Constraint("Coincident", 7, 2, 4, 1),
    Sketcher.Constraint("Vertical", 0),
    Sketcher.Constraint("Horizontal", 1),
    Sketcher.Constraint("Vertical", 2),
    Sketcher.Constraint("Horizontal", 3),
    Sketcher.Constraint("Vertical", 4),
    Sketcher.Constraint("Horizontal", 5),
    Sketcher.Constraint("Vertical", 6),
    Sketcher.Constraint("Horizontal", 7),
    Sketcher.Constraint("Horizontal", 1, 2, 4, 2),
    Sketcher.Constraint("Horizontal", 3, 2, 6, 2),
    Sketcher.Constraint("Equal", 3, 5),
    Sketcher.Constraint("DistanceX", 1, 1, 1, 2, Q("7 mm")),
    Sketcher.Constraint("DistanceY", 0, 2, 0, 1, Q("1 mm")),
    Sketcher.Constraint("DistanceX", 1, 2, 4, 2, Q("4.2 mm")),
    Sketcher.Constraint("DistanceX", 0, 2, -1, 1, Q("34.106478 mm")),
    Sketcher.Constraint("DistanceY", -1, 1, 0, 2, Q("69.636123 mm")),
])
sketch7.setExpression("Constraints[19]", "Params.sketch7_width")
sketch7.setExpression("Constraints[20]", "Params.sketch7_height")
pocket2 = body.newObject("PartDesign::Pocket", "Pocket001")
pocket2.Profile = sketch7
pocket2.setExpression("Length", "Params.pocket2_length")
pocket2.Reversed = True

sketch8 = body.newObject("Sketcher::SketchObject", "Sketch007")
sketch8.AttachmentSupport = (doc.getObject("XY_Plane"), [""])
sketch8.MapMode = "FlatFace"
sketch8.AttachmentOffset = App.Placement(App.Vector(0, 0, 39), App.Rotation())
sketch8.addGeometry([
    Part.LineSegment(App.Vector(-21.406478, 69.636123, 0), App.Vector(-17.406478, 69.636123, 0)),
    Part.LineSegment(App.Vector(-17.406478, 69.636123, 0), App.Vector(-17.406478, 70.636123, 0)),
    Part.LineSegment(App.Vector(-17.406478, 70.636123, 0), App.Vector(-21.406478, 70.636123, 0)),
    Part.LineSegment(App.Vector(-21.406478, 70.636123, 0), App.Vector(-21.406478, 69.636123, 0)),
    Part.LineSegment(App.Vector(-32.606478, 69.636123, 0), App.Vector(-28.606478, 69.636123, 0)),
    Part.LineSegment(App.Vector(-28.606478, 69.636123, 0), App.Vector(-28.606478, 70.636123, 0)),
    Part.LineSegment(App.Vector(-28.606478, 70.636123, 0), App.Vector(-32.606478, 70.636123, 0)),
    Part.LineSegment(App.Vector(-32.606478, 70.636123, 0), App.Vector(-32.606478, 69.636123, 0)),
], False)
sketch8.addConstraint([
    Sketcher.Constraint("Coincident", 0, 2, 1, 1),
    Sketcher.Constraint("Coincident", 1, 2, 2, 1),
    Sketcher.Constraint("Coincident", 2, 2, 3, 1),
    Sketcher.Constraint("Coincident", 3, 2, 0, 1),
    Sketcher.Constraint("Coincident", 4, 2, 5, 1),
    Sketcher.Constraint("Coincident", 5, 2, 6, 1),
    Sketcher.Constraint("Coincident", 6, 2, 7, 1),
    Sketcher.Constraint("Coincident", 7, 2, 4, 1),
    Sketcher.Constraint("Horizontal", 0),
    Sketcher.Constraint("Vertical", 1),
    Sketcher.Constraint("Horizontal", 2),
    Sketcher.Constraint("Vertical", 3),
    Sketcher.Constraint("Horizontal", 4),
    Sketcher.Constraint("Vertical", 5),
    Sketcher.Constraint("Horizontal", 6),
    Sketcher.Constraint("Vertical", 7),
    Sketcher.Constraint("Horizontal", 3, 2, 4, 2),
    Sketcher.Constraint("Horizontal", 2, 2, 5, 2),
    Sketcher.Constraint("Equal", 2, 4),
    Sketcher.Constraint("DistanceX", 0, 1, 0, 2, Q("4 mm")),
    Sketcher.Constraint("DistanceY", 1, 1, 1, 2, Q("1 mm")),
    Sketcher.Constraint("DistanceX", 4, 2, 3, 2, Q("7.2 mm")),
    Sketcher.Constraint("DistanceX", 0, 2, -1, 1, Q("17.406478 mm")),
    Sketcher.Constraint("DistanceY", -1, 1, 0, 2, Q("69.636123 mm")),
])
sketch8.setExpression("Constraints[19]", "Params.sketch8_width")
sketch8.setExpression("Constraints[20]", "Params.sketch8_height")
pocket3 = body.newObject("PartDesign::Pocket", "Pocket002")
pocket3.Profile = sketch8
pocket3.setExpression("Length", "Params.pocket3_length")
pocket3.Reversed = True

doc.recompute()
